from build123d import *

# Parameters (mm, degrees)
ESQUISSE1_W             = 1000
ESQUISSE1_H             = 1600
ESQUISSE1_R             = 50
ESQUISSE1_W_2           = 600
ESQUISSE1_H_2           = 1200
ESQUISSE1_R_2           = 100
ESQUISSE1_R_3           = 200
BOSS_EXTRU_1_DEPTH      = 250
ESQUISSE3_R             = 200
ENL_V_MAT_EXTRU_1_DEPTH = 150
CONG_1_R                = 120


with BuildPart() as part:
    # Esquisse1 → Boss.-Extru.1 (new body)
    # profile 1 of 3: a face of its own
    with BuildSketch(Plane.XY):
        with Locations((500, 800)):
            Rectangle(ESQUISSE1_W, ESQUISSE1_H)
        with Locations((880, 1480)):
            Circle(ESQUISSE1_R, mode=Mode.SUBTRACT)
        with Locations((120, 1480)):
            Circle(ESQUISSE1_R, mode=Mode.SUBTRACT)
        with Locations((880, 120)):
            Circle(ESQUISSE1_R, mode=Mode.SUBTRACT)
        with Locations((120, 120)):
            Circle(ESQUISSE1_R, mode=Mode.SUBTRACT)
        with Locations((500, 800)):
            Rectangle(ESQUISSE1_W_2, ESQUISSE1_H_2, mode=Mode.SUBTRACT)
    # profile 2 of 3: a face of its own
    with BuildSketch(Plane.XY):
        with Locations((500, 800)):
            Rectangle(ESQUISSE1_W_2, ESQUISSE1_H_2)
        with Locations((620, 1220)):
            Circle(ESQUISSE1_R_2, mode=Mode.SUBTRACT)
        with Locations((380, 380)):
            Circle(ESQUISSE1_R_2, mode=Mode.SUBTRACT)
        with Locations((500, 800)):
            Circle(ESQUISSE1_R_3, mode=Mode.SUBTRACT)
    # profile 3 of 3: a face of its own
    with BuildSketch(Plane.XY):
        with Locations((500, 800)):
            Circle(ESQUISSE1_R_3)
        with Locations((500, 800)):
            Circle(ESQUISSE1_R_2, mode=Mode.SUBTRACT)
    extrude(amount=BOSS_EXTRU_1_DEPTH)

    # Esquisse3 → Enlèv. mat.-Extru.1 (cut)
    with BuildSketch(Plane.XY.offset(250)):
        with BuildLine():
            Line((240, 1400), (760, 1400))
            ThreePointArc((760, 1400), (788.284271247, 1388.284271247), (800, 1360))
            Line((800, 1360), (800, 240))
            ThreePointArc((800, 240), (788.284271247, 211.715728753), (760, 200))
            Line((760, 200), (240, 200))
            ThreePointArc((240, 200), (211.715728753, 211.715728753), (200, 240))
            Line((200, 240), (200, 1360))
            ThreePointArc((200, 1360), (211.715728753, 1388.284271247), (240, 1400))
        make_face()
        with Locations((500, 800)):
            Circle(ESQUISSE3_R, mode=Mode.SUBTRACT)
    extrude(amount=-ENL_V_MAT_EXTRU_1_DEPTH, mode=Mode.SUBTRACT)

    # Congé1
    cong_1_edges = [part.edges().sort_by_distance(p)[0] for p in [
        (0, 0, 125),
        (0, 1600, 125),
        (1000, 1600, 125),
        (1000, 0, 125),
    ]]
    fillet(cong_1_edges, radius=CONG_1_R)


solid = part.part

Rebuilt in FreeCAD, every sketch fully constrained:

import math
import FreeCAD as App
import Part
import Sketcher

V = App.Vector


def edges_at(feature, points):
    """Names of the edges that pass closest to the given points."""
    edges = feature.Shape.Edges
    near = lambda p: min(range(len(edges)), key=lambda i: edges[i].distToShape(Part.Vertex(*p))[0])
    return sorted({f"Edge{near(p) + 1}" for p in points})


def add_polygon(sketch, points):
    """Adds a closed chain of lines whose ends are joined by coincident constraints."""
    first, n = sketch.GeometryCount, len(points)
    for a, b in zip(points, points[1:] + points[:1]):
        sketch.addGeometry(Part.LineSegment(App.Vector(*a, 0), App.Vector(*b, 0)), False)
    for i in range(n):
        sketch.addConstraint(Sketcher.Constraint("Coincident", first + i, 2, first + (i + 1) % n, 1))

doc = App.newDocument("Part")
params = doc.addObject("Spreadsheet::Sheet", "Params")
for row, (alias, value) in enumerate([
    ("sketch1_diameter", "100 mm"),
    ("sketch1_diameter2", "200 mm"),
    ("sketch1_width", "1000 mm"),
    ("sketch1_height", "1600 mm"),
    ("pad1_length", "250 mm"),
    ("sketch2_diameter", "400 mm"),
    ("sketch2_radius", "40 mm"),
    ("sketch2_width", "520 mm"),
    ("sketch2_height", "1120 mm"),
    ("pocket1_length", "150 mm"),
    ("fillet_radius", "120 mm"),
], start=1):
    params.set(f"A{row}", alias)
    params.set(f"B{row}", "=" + value)
    params.setAlias(f"B{row}", alias)

body = doc.addObject("PartDesign::Body", "Body")

# Sketch on XY plane
sketch1 = body.newObject("Sketcher::SketchObject", "Sketch")
sketch1.AttachmentSupport = (doc.getObject("XY_Plane"), [""])
sketch1.MapMode = "FlatFace"
add_polygon(sketch1, [(0, 1600), (0, 0), (1000, 0), (1000, 1600)])  # lines 0-3
sketch1.addGeometry(Part.Circle(V(120, 120, 0), V(0, 0, 1), 50), False)  # 4
sketch1.addGeometry(Part.Circle(V(880, 120, 0), V(0, 0, 1), 50), False)  # 5
sketch1.addGeometry(Part.Circle(V(120, 1480, 0), V(0, 0, 1), 50), False)  # 6
sketch1.addGeometry(Part.Circle(V(880, 1480, 0), V(0, 0, 1), 50), False)  # 7
sketch1.addGeometry(Part.Circle(V(620, 1220, 0), V(0, 0, 1), 100), False)  # 8
sketch1.addGeometry(Part.Circle(V(380, 380, 0), V(0, 0, 1), 100), False)  # 9
sketch1.addGeometry(Part.Circle(V(500, 800, 0), V(0, 0, 1), 100), False)  # 10
sketch1.addConstraint([
    Sketcher.Constraint("Vertical", 0),
    Sketcher.Constraint("Horizontal", 1),
    Sketcher.Constraint("Vertical", 2),
    Sketcher.Constraint("Horizontal", 3),
    Sketcher.Constraint("Coincident", 0, 2, -1, 1),
    Sketcher.Constraint("Equal", 4, 5),
    Sketcher.Constraint("Equal", 5, 6),
    Sketcher.Constraint("Equal", 6, 7),
    Sketcher.Constraint("Equal", 8, 9),
    Sketcher.Constraint("Equal", 9, 10),
    Sketcher.Constraint("Horizontal", 4, 3, 5, 3),
    Sketcher.Constraint("Horizontal", 6, 3, 7, 3),
    Sketcher.Constraint("Vertical", 4, 3, 6, 3),
    Sketcher.Constraint("Vertical", 5, 3, 7, 3),
    Sketcher.Constraint("Diameter", 4, 100.0),
    Sketcher.Constraint("Diameter", 8, 200.0),
    Sketcher.Constraint("DistanceX", 1, 1, 1, 2, 1000.0),
    Sketcher.Constraint("DistanceY", 0, 2, 0, 1, 1600.0),
    Sketcher.Constraint("DistanceX", -1, 1, 4, 3, 120.0),
    Sketcher.Constraint("DistanceY", -1, 1, 4, 3, 120.0),
    Sketcher.Constraint("DistanceX", -1, 1, 5, 3, 880.0),
    Sketcher.Constraint("DistanceY", -1, 1, 6, 3, 1480.0),
    Sketcher.Constraint("DistanceX", -1, 1, 8, 3, 620.0),
    Sketcher.Constraint("DistanceY", -1, 1, 8, 3, 1220.0),
    Sketcher.Constraint("DistanceX", -1, 1, 9, 3, 380.0),
    Sketcher.Constraint("DistanceY", -1, 1, 9, 3, 380.0),
    Sketcher.Constraint("DistanceX", -1, 1, 10, 3, 500.0),
    Sketcher.Constraint("DistanceY", -1, 1, 10, 3, 800.0),
])
sketch1.setExpression("Constraints[18]", "Params.sketch1_diameter")
sketch1.setExpression("Constraints[19]", "Params.sketch1_diameter2")
sketch1.setExpression("Constraints[20]", "Params.sketch1_width")
sketch1.setExpression("Constraints[21]", "Params.sketch1_height")
pad1 = body.newObject("PartDesign::Pad", "Pad")
pad1.Profile = sketch1
pad1.setExpression("Length", "Params.pad1_length")

# Sketch on XY plane
sketch2 = body.newObject("Sketcher::SketchObject", "Sketch001")
sketch2.AttachmentSupport = (doc.getObject("XY_Plane"), [""])
sketch2.MapMode = "FlatFace"
sketch2.AttachmentOffset = App.Placement(V(0, 0, 250), App.Rotation())
sketch2.addGeometry([
    Part.LineSegment(V(760, 1400, 0), V(240, 1400, 0)),  # 0
    Part.ArcOfCircle(Part.Circle(V(240, 1360, 0), V(0, 0, 1), 40), math.radians(90), math.radians(180)),  # 1
    Part.LineSegment(V(200, 1360, 0), V(200, 240, 0)),  # 2
    Part.ArcOfCircle(Part.Circle(V(240, 240, 0), V(0, 0, 1), 40), math.radians(-180), math.radians(-90)),  # 3
    Part.LineSegment(V(240, 200, 0), V(760, 200, 0)),  # 4
    Part.ArcOfCircle(Part.Circle(V(760, 240, 0), V(0, 0, 1), 40), math.radians(-90), math.radians(0)),  # 5
    Part.LineSegment(V(800, 240, 0), V(800, 1360, 0)),  # 6
    Part.ArcOfCircle(Part.Circle(V(760, 1360, 0), V(0, 0, 1), 40), math.radians(0), math.radians(90)),  # 7
    Part.Circle(V(500, 800, 0), V(0, 0, 1), 200),  # 8
], False)
sketch2.addConstraint([
    Sketcher.Constraint("Tangent", 0, 2, 1, 1),
    Sketcher.Constraint("Tangent", 1, 2, 2, 1),
    Sketcher.Constraint("Tangent", 2, 2, 3, 1),
    Sketcher.Constraint("Tangent", 3, 2, 4, 1),
    Sketcher.Constraint("Tangent", 4, 2, 5, 1),
    Sketcher.Constraint("Tangent", 5, 2, 6, 1),
    Sketcher.Constraint("Tangent", 6, 2, 7, 1),
    Sketcher.Constraint("Tangent", 7, 2, 0, 1),
    Sketcher.Constraint("Horizontal", 0),
    Sketcher.Constraint("Vertical", 2),
    Sketcher.Constraint("Horizontal", 4),
    Sketcher.Constraint("Vertical", 6),
    Sketcher.Constraint("Equal", 1, 3),
    Sketcher.Constraint("Equal", 3, 5),
    Sketcher.Constraint("Equal", 5, 7),
    Sketcher.Constraint("Diameter", 8, 400.0),
    Sketcher.Constraint("Radius", 1, 40.0),
    Sketcher.Constraint("DistanceX", 0, 2, 0, 1, 520.0),
    Sketcher.Constraint("DistanceY", 2, 2, 2, 1, 1120.0),
    Sketcher.Constraint("DistanceX", -1, 1, 1, 3, 240.0),
    Sketcher.Constraint("DistanceY", -1, 1, 1, 3, 1360.0),
    Sketcher.Constraint("DistanceX", -1, 1, 8, 3, 500.0),
    Sketcher.Constraint("DistanceY", -1, 1, 8, 3, 800.0),
])
sketch2.setExpression("Constraints[15]", "Params.sketch2_diameter")
sketch2.setExpression("Constraints[16]", "Params.sketch2_radius")
sketch2.setExpression("Constraints[17]", "Params.sketch2_width")
sketch2.setExpression("Constraints[18]", "Params.sketch2_height")
pocket1 = body.newObject("PartDesign::Pocket", "Pocket")
pocket1.Profile = sketch2
pocket1.setExpression("Length", "Params.pocket1_length")
doc.recompute()

fillet = body.newObject("PartDesign::Fillet", "Fillet")
fillet.Base = (pocket1, edges_at(pocket1, [
    (0, 0, 125),
    (0, 1600, 125),
    (1000, 1600, 125),
    (1000, 0, 125),
]))
fillet.setExpression("Radius", "Params.fillet_radius")

doc.recompute()
